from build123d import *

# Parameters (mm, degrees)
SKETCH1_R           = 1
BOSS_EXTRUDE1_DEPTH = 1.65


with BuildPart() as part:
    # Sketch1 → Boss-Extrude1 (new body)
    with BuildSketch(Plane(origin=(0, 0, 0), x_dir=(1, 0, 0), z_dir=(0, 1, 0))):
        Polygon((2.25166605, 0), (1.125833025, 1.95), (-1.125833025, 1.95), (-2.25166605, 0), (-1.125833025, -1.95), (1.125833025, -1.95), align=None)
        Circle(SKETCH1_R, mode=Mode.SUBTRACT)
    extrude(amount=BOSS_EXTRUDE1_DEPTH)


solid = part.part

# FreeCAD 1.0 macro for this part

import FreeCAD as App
import Part
import Sketcher
Q = App.Units.Quantity


def add_polygon(sketch, points):
    """Adds a closed chain of lines whose ends are joined by coincident constraints."""
    first, n = sketch.GeometryCount, len(points)
    for a, b in zip(points, points[1:] + points[:1]):
        sketch.addGeometry(Part.LineSegment(App.Vector(*a, 0), App.Vector(*b, 0)), False)
    for i in range(n):
        sketch.addConstraint(Sketcher.Constraint("Coincident", first + i, 2, first + (i + 1) % n, 1))

doc = App.newDocument("Part")
body = doc.addObject("PartDesign::Body", "Body")

sketch1 = body.newObject("Sketcher::SketchObject", "Sketch")
sketch1.AttachmentSupport = (doc.getObject("XZ_Plane"), [""])
sketch1.MapMode = "FlatFace"
add_polygon(sketch1, [(2.3, 0), (1.1, -1.9), (-1.1, -1.9), (-2.3, 0), (-1.1, 1.9), (1.1, 1.9)])
sketch1.addGeometry(Part.Circle(App.Vector(0, 0, 0), App.Vector(0, 0, 1), 1), False)
sketch1.addConstraint([
    Sketcher.Constraint("Horizontal", 1),
    Sketcher.Constraint("Horizontal", 4),
    Sketcher.Constraint("Coincident", 6, 3, -1, 1),
    Sketcher.Constraint("Symmetric", 0, 2, 3, 2, -1, 1),
    Sketcher.Constraint("Symmetric", 2, 2, 5, 2, -1, 1),
    Sketcher.Constraint("PointOnObject", 2, 2, -1),
    Sketcher.Constraint("Parallel", 2, 5),
    Sketcher.Constraint("Vertical", 1, 2, 3, 2),
    Sketcher.Constraint("Diameter", 6, Q("2 mm")),
    Sketcher.Constraint("Angle", 0, Q("-120 deg")),
    Sketcher.Constraint("DistanceY", 1, 2, 3, 2, Q("3.9 mm")),
    Sketcher.Constraint("DistanceX", 2, 2, 0, 2, Q("3.377499 mm")),
])
pad1 = body.newObject("PartDesign::Pad", "Pad")
pad1.Profile = sketch1
pad1.Length = 1.65
pad1.Reversed = True

doc.recompute()
